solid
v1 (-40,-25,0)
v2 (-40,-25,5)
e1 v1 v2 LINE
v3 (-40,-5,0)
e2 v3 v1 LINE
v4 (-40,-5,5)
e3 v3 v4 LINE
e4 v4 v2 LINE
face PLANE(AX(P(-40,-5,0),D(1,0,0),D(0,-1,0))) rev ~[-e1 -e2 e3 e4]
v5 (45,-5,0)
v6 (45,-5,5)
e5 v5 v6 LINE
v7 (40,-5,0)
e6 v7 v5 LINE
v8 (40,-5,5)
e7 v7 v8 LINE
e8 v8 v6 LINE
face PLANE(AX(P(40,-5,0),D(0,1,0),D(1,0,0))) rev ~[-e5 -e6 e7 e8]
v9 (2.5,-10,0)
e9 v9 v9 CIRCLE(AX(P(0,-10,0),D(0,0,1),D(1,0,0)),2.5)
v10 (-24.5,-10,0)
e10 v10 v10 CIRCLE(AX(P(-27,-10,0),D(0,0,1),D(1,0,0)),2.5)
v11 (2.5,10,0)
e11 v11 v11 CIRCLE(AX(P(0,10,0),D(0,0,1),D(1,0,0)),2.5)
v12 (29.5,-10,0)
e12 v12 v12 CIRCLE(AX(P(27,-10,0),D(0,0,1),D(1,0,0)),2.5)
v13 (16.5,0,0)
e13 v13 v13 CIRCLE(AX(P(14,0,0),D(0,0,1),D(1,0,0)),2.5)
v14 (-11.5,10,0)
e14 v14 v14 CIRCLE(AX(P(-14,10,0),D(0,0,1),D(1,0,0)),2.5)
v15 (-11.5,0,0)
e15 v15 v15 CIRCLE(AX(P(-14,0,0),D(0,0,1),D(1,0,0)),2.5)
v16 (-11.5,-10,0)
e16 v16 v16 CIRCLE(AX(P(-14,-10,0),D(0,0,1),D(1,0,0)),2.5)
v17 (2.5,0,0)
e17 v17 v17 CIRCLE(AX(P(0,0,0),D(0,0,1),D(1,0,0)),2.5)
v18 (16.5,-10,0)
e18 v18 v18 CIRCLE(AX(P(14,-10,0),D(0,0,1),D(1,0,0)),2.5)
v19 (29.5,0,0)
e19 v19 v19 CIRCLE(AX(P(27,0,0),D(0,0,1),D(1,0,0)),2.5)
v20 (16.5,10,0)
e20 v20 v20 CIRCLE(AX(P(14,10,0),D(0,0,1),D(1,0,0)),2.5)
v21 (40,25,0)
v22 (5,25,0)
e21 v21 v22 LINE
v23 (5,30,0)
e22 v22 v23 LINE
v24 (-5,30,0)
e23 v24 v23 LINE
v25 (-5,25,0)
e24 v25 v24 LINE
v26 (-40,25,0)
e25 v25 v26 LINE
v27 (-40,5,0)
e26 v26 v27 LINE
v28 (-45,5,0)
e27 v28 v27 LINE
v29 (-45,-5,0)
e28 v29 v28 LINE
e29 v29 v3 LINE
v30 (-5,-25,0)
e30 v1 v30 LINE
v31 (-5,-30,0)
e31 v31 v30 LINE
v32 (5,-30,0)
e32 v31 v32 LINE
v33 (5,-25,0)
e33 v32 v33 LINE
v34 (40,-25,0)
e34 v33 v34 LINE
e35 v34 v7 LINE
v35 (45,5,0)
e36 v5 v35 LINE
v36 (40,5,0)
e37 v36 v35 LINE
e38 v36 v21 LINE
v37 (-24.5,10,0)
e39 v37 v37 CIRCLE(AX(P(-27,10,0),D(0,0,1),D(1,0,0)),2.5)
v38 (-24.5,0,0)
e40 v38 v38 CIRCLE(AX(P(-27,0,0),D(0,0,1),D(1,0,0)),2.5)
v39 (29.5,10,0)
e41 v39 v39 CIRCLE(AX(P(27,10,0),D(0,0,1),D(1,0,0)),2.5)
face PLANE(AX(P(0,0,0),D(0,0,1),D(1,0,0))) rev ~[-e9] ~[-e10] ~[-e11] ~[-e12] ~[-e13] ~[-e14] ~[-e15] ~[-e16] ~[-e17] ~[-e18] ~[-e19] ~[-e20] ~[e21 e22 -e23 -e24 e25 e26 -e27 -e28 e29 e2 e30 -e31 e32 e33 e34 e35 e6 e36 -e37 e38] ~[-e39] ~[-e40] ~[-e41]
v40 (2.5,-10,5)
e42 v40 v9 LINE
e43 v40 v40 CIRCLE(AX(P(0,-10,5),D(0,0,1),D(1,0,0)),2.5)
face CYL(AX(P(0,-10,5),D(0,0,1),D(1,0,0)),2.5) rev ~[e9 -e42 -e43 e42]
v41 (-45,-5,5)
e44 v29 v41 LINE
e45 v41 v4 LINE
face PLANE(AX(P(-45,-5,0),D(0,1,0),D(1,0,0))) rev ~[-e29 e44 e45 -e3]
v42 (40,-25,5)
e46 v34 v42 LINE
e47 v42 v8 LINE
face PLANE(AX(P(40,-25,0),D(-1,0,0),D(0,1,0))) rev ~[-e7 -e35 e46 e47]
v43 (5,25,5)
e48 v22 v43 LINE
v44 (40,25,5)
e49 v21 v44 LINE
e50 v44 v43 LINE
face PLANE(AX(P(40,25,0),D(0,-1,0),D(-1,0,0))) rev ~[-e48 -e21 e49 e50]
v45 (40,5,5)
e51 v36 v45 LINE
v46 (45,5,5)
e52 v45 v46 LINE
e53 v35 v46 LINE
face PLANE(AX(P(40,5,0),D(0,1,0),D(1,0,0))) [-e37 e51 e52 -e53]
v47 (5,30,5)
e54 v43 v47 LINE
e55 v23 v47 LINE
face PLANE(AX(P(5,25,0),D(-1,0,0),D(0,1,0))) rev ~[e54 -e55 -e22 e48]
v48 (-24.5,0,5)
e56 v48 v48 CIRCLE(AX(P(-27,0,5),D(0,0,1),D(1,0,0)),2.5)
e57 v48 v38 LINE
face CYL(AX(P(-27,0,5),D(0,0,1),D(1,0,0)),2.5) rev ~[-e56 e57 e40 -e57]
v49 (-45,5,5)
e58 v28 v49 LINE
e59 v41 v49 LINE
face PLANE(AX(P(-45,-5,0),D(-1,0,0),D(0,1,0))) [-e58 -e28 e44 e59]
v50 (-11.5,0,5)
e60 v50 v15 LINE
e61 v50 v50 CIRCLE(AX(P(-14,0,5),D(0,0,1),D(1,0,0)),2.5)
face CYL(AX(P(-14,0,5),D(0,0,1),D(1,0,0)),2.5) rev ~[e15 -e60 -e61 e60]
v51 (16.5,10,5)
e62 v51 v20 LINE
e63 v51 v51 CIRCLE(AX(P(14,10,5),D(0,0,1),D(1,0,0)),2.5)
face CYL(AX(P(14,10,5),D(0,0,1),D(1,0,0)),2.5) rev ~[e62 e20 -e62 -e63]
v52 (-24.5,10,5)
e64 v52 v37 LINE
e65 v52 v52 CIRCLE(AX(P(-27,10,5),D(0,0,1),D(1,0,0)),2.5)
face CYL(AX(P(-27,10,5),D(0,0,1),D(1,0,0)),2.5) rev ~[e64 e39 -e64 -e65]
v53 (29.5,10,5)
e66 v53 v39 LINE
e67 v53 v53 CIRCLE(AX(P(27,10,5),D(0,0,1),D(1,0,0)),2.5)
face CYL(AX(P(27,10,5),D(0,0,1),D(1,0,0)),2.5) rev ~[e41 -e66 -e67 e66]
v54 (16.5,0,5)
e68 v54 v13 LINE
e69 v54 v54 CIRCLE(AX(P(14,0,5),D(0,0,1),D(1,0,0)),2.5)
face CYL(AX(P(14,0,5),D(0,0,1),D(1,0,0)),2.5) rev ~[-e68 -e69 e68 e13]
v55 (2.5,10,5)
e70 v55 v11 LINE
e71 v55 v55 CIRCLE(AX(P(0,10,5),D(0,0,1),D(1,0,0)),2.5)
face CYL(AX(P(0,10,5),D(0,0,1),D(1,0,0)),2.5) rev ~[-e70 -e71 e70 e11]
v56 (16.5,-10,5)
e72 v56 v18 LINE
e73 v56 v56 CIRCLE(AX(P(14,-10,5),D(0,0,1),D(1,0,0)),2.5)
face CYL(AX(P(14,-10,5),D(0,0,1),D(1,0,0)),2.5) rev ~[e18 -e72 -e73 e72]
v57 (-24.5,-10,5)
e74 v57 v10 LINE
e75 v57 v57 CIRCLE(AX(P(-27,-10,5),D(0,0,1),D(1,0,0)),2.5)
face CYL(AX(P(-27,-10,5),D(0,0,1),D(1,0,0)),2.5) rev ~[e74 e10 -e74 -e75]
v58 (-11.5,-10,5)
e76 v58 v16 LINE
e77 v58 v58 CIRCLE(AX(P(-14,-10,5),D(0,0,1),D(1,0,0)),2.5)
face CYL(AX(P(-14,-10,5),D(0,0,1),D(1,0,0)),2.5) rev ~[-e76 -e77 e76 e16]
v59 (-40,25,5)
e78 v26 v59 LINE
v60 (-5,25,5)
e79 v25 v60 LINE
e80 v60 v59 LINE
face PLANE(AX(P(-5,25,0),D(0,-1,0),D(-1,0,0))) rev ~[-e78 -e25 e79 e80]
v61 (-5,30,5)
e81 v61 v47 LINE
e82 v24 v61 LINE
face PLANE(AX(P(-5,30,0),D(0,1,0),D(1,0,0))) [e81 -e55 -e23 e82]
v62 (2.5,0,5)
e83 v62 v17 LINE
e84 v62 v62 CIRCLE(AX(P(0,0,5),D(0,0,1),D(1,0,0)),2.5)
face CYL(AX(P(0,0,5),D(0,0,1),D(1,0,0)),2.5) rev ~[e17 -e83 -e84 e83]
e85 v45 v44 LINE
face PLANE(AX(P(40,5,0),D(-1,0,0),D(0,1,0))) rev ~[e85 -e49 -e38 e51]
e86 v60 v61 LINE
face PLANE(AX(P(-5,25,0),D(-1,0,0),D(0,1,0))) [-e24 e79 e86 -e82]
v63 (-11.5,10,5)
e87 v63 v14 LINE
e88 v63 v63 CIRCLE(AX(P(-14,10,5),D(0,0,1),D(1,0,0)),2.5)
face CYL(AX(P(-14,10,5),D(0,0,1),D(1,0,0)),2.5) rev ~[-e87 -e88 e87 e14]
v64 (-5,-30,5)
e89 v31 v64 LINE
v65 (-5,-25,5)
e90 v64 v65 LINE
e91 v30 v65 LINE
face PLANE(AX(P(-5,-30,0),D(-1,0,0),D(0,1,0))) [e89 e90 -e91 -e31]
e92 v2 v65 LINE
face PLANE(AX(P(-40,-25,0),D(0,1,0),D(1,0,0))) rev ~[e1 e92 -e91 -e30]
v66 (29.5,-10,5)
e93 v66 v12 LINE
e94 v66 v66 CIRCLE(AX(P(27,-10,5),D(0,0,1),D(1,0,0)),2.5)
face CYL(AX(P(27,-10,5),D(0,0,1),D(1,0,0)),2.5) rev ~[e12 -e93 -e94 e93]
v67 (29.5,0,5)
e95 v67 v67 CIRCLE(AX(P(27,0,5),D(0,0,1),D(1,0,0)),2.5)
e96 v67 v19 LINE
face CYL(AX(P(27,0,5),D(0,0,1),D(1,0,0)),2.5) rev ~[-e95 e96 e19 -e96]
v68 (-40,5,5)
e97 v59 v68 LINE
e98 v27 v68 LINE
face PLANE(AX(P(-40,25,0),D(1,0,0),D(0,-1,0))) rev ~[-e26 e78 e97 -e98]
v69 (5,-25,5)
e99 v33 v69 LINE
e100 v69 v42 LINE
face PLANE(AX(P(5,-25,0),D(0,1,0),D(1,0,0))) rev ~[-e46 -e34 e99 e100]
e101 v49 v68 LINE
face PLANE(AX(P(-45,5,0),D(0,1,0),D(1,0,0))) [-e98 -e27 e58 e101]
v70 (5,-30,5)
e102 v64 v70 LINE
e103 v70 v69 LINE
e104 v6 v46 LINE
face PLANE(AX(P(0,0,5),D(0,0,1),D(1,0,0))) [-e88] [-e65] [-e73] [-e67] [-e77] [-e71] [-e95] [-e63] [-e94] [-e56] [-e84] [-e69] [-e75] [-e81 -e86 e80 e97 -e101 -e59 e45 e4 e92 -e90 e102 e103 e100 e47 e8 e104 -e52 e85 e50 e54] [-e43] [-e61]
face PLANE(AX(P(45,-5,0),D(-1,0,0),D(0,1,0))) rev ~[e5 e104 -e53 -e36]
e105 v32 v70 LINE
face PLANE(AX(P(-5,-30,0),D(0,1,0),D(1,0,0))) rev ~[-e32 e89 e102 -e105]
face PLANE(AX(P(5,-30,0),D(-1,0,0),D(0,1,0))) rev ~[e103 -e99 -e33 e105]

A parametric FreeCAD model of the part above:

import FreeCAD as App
import Part
import Sketcher
Q = App.Units.Quantity


def add_polygon(sketch, points):
    """Adds a closed chain of lines whose ends are joined by coincident constraints."""
    first, n = sketch.GeometryCount, len(points)
    for a, b in zip(points, points[1:] + points[:1]):
        sketch.addGeometry(Part.LineSegment(App.Vector(*a, 0), App.Vector(*b, 0)), False)
    for i in range(n):
        sketch.addConstraint(Sketcher.Constraint("Coincident", first + i, 2, first + (i + 1) % n, 1))

doc = App.newDocument("Part")
params = doc.addObject("Spreadsheet::Sheet", "Params")
for row, (alias, value) in enumerate([
    ("sketch1_width", "5 mm"),
    ("sketch1_width2", "35 mm"),
    ("sketch1_width3", "10 mm"),
    ("sketch1_height", "20 mm"),
    ("pad1_length", "5 mm"),
    ("sketch2_diameter", "5 mm"),
    ("pocket1_length", "5 mm"),
], start=1):
    params.set(f"A{row}", alias)
    params.set(f"B{row}", "=" + value)
    params.setAlias(f"B{row}", alias)

body = doc.addObject("PartDesign::Body", "Body")

# Sketch on XY plane
sketch1 = doc.addObject("Sketcher::SketchObject", "Sketch")
body.addObject(sketch1)
sketch1.AttachmentSupport = (doc.XY_Plane, [""])
sketch1.MapMode = "FlatFace"
add_polygon(sketch1, [(-40, 25), (-40, 5), (-45, 5), (-45, -5), (-40, -5), (-40, -25), (-5, -25), (-5, -30), (5, -30), (5, -25), (40, -25), (40, -5), (45, -5), (45, 5), (40, 5), (40, 25), (5, 25), (5, 30), (-5, 30), (-5, 25)])  # lines 0-19
sketch1.addConstraint([
    Sketcher.Constraint("Vertical", 0),
    Sketcher.Constraint("Horizontal", 1),
    Sketcher.Constraint("Vertical", 2),
    Sketcher.Constraint("Horizontal", 3),
    Sketcher.Constraint("Vertical", 4),
    Sketcher.Constraint("Horizontal", 5),
    Sketcher.Constraint("Vertical", 6),
    Sketcher.Constraint("Horizontal", 7),
    Sketcher.Constraint("Vertical", 8),
    Sketcher.Constraint("Horizontal", 9),
    Sketcher.Constraint("Vertical", 10),
    Sketcher.Constraint("Horizontal", 11),
    Sketcher.Constraint("Vertical", 12),
    Sketcher.Constraint("Horizontal", 13),
    Sketcher.Constraint("Vertical", 14),
    Sketcher.Constraint("Horizontal", 15),
    Sketcher.Constraint("Vertical", 16),
    Sketcher.Constraint("Horizontal", 17),
    Sketcher.Constraint("Vertical", 18),
    Sketcher.Constraint("Horizontal", 19),
    Sketcher.Constraint("Symmetric", 0, 2, 10, 2, -1, 1),
    Sketcher.Constraint("Symmetric", 2, 2, 12, 2, -1, 1),
    Sketcher.Constraint("Symmetric", 4, 2, 14, 2, -1, 1),
    Sketcher.Constraint("Symmetric", 6, 2, 16, 2, -1, 1),
    Sketcher.Constraint("Symmetric", 8, 2, 18, 2, -1, 1),
    Sketcher.Constraint("Symmetric", 5, 2, 8, 2, -2),
    Sketcher.Constraint("Symmetric", 3, 2, 10, 2, -2),
    Sketcher.Constraint("Equal", 17, 2),
    Sketcher.Constraint("Equal", 13, 6),
    Sketcher.Constraint("DistanceX", 1, 2, 1, 1, Q("5 mm")),
    Sketcher.Constraint("DistanceX", 5, 1, 5, 2, Q("35 mm")),
    Sketcher.Constraint("DistanceX", 7, 1, 7, 2, Q("10 mm")),
    Sketcher.Constraint("DistanceY", 0, 2, 0, 1, Q("20 mm")),
])
sketch1.setExpression("Constraints[49]", "Params.sketch1_width")
sketch1.setExpression("Constraints[50]", "Params.sketch1_width2")
sketch1.setExpression("Constraints[51]", "Params.sketch1_width3")
sketch1.setExpression("Constraints[52]", "Params.sketch1_height")
pad1 = doc.addObject("PartDesign::Pad", "Pad")
body.addObject(pad1)
pad1.Profile = sketch1
pad1.setExpression("Length", "Params.pad1_length")

# Sketch on XY plane
sketch2 = doc.addObject("Sketcher::SketchObject", "Sketch001")
body.addObject(sketch2)
sketch2.AttachmentSupport = (doc.XY_Plane, [""])
sketch2.MapMode = "FlatFace"
sketch2.AttachmentOffset = App.Placement(App.Vector(0, 0, 5), App.Rotation())
sketch2.addGeometry([
    Part.Circle(App.Vector(-27, 10, 0), App.Vector(0, 0, 1), 2.5),  # 0
    Part.Circle(App.Vector(-14, 10, 0), App.Vector(0, 0, 1), 2.5),  # 1
    Part.Circle(App.Vector(0, 10, 0), App.Vector(0, 0, 1), 2.5),  # 2
    Part.Circle(App.Vector(14, 10, 0), App.Vector(0, 0, 1), 2.5),  # 3
    Part.Circle(App.Vector(27, 10, 0), App.Vector(0, 0, 1), 2.5),  # 4
    Part.Circle(App.Vector(-27, 0, 0), App.Vector(0, 0, 1), 2.5),  # 5
    Part.Circle(App.Vector(-14, 0, 0), App.Vector(0, 0, 1), 2.5),  # 6
    Part.Circle(App.Vector(0, 0, 0), App.Vector(0, 0, 1), 2.5),  # 7
    Part.Circle(App.Vector(14, 0, 0), App.Vector(0, 0, 1), 2.5),  # 8
    Part.Circle(App.Vector(27, 0, 0), App.Vector(0, 0, 1), 2.5),  # 9
    Part.Circle(App.Vector(27, -10, 0), App.Vector(0, 0, 1), 2.5),  # 10
    Part.Circle(App.Vector(14, -10, 0), App.Vector(0, 0, 1), 2.5),  # 11
    Part.Circle(App.Vector(0, -10, 0), App.Vector(0, 0, 1), 2.5),  # 12
    Part.Circle(App.Vector(-14, -10, 0), App.Vector(0, 0, 1), 2.5),  # 13
    Part.Circle(App.Vector(-27, -10, 0), App.Vector(0, 0, 1), 2.5),  # 14
], False)
sketch2.addConstraint([
    Sketcher.Constraint("Coincident", 7, 3, -1, 1),
    Sketcher.Constraint("Equal", 0, 1),
    Sketcher.Constraint("Equal", 1, 2),
    Sketcher.Constraint("Equal", 2, 3),
    Sketcher.Constraint("Equal", 3, 4),
    Sketcher.Constraint("Equal", 4, 5),
    Sketcher.Constraint("Equal", 5, 6),
    Sketcher.Constraint("Equal", 6, 7),
    Sketcher.Constraint("Equal", 7, 8),
    Sketcher.Constraint("Equal", 8, 9),
    Sketcher.Constraint("Equal", 9, 10),
    Sketcher.Constraint("Equal", 10, 11),
    Sketcher.Constraint("Equal", 11, 12),
    Sketcher.Constraint("Equal", 12, 13),
    Sketcher.Constraint("Equal", 13, 14),
    Sketcher.Constraint("Symmetric", 6, 3, 8, 3, -1, 1),
    Sketcher.Constraint("Symmetric", 5, 3, 9, 3, -1, 1),
    Sketcher.Constraint("Symmetric", 0, 3, 10, 3, -1, 1),
    Sketcher.Constraint("Symmetric", 1, 3, 11, 3, -1, 1),
    Sketcher.Constraint("Symmetric", 2, 3, 12, 3, -1, 1),
    Sketcher.Constraint("Symmetric", 3, 3, 13, 3, -1, 1),
    Sketcher.Constraint("Symmetric", 4, 3, 14, 3, -1, 1),
    Sketcher.Constraint("Symmetric", 1, 3, 3, 3, -2),
    Sketcher.Constraint("Symmetric", 0, 3, 4, 3, -2),
    Sketcher.Constraint("PointOnObject", 2, 3, -2),
    Sketcher.Constraint("PointOnObject", 5, 3, -1),
    Sketcher.Constraint("PointOnObject", 6, 3, -1),
    Sketcher.Constraint("Horizontal", 0, 3, 1, 3),
    Sketcher.Constraint("Horizontal", 1, 3, 2, 3),
    Sketcher.Constraint("Vertical", 0, 3, 5, 3),
    Sketcher.Constraint("Vertical", 1, 3, 6, 3),
    Sketcher.Constraint("Diameter", 0, Q("5 mm")),
    Sketcher.Constraint("DistanceX", 0, 3, -1, 1, Q("27 mm")),
    Sketcher.Constraint("DistanceY", -1, 1, 0, 3, Q("10 mm")),
    Sketcher.Constraint("DistanceX", 1, 3, -1, 1, Q("14 mm")),
])
sketch2.setExpression("Constraints[31]", "Params.sketch2_diameter")
pocket1 = doc.addObject("PartDesign::Pocket", "Pocket")
body.addObject(pocket1)
pocket1.Profile = sketch2
pocket1.setExpression("Length", "Params.pocket1_length")

doc.recompute()
